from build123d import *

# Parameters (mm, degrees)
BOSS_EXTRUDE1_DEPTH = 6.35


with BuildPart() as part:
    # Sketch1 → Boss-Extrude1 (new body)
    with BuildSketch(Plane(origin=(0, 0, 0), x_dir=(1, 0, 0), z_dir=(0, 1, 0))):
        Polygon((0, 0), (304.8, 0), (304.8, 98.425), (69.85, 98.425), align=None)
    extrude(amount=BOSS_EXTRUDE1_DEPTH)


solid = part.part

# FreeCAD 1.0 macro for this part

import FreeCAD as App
import Part
import Sketcher

V = App.Vector
Q = App.Units.Quantity


def add_polygon(sketch, points):
    """Adds a closed chain of lines whose ends are joined by coincident constraints."""
    first, n = sketch.GeometryCount, len(points)
    for a, b in zip(points, points[1:] + points[:1]):
        sketch.addGeometry(Part.LineSegment(App.Vector(*a, 0), App.Vector(*b, 0)), False)
    for i in range(n):
        sketch.addConstraint(Sketcher.Constraint("Coincident", first + i, 2, first + (i + 1) % n, 1))

doc = App.newDocument("Part")
body = doc.addObject("PartDesign::Body", "Body")

sketch1 = body.newObject("Sketcher::SketchObject", "Sketch")
sketch1.AttachmentSupport = (doc.getObject("XZ_Plane"), [""])
sketch1.MapMode = "FlatFace"
add_polygon(sketch1, [(0, 0), (305, 0), (305, -98), (70, -98)])
sketch1.addConstraint([
    Sketcher.Constraint("Horizontal", 0),
    Sketcher.Constraint("Vertical", 1),
    Sketcher.Constraint("Horizontal", 2),
    Sketcher.Constraint("Coincident", 3, 2, -1, 1),
    Sketcher.Constraint("DistanceX", 0, 1, 0, 2, Q("12 in")),
    Sketcher.Constraint("DistanceX", 2, 2, 2, 1, Q("9.25 in")),
    Sketcher.Constraint("DistanceY", 1, 2, 1, 1, Q("3.875 in")),
])
pad1 = body.newObject("PartDesign::Pad", "Pad")
pad1.Profile = sketch1
pad1.Length = Q("0.25 in")
pad1.Reversed = True

doc.recompute()
